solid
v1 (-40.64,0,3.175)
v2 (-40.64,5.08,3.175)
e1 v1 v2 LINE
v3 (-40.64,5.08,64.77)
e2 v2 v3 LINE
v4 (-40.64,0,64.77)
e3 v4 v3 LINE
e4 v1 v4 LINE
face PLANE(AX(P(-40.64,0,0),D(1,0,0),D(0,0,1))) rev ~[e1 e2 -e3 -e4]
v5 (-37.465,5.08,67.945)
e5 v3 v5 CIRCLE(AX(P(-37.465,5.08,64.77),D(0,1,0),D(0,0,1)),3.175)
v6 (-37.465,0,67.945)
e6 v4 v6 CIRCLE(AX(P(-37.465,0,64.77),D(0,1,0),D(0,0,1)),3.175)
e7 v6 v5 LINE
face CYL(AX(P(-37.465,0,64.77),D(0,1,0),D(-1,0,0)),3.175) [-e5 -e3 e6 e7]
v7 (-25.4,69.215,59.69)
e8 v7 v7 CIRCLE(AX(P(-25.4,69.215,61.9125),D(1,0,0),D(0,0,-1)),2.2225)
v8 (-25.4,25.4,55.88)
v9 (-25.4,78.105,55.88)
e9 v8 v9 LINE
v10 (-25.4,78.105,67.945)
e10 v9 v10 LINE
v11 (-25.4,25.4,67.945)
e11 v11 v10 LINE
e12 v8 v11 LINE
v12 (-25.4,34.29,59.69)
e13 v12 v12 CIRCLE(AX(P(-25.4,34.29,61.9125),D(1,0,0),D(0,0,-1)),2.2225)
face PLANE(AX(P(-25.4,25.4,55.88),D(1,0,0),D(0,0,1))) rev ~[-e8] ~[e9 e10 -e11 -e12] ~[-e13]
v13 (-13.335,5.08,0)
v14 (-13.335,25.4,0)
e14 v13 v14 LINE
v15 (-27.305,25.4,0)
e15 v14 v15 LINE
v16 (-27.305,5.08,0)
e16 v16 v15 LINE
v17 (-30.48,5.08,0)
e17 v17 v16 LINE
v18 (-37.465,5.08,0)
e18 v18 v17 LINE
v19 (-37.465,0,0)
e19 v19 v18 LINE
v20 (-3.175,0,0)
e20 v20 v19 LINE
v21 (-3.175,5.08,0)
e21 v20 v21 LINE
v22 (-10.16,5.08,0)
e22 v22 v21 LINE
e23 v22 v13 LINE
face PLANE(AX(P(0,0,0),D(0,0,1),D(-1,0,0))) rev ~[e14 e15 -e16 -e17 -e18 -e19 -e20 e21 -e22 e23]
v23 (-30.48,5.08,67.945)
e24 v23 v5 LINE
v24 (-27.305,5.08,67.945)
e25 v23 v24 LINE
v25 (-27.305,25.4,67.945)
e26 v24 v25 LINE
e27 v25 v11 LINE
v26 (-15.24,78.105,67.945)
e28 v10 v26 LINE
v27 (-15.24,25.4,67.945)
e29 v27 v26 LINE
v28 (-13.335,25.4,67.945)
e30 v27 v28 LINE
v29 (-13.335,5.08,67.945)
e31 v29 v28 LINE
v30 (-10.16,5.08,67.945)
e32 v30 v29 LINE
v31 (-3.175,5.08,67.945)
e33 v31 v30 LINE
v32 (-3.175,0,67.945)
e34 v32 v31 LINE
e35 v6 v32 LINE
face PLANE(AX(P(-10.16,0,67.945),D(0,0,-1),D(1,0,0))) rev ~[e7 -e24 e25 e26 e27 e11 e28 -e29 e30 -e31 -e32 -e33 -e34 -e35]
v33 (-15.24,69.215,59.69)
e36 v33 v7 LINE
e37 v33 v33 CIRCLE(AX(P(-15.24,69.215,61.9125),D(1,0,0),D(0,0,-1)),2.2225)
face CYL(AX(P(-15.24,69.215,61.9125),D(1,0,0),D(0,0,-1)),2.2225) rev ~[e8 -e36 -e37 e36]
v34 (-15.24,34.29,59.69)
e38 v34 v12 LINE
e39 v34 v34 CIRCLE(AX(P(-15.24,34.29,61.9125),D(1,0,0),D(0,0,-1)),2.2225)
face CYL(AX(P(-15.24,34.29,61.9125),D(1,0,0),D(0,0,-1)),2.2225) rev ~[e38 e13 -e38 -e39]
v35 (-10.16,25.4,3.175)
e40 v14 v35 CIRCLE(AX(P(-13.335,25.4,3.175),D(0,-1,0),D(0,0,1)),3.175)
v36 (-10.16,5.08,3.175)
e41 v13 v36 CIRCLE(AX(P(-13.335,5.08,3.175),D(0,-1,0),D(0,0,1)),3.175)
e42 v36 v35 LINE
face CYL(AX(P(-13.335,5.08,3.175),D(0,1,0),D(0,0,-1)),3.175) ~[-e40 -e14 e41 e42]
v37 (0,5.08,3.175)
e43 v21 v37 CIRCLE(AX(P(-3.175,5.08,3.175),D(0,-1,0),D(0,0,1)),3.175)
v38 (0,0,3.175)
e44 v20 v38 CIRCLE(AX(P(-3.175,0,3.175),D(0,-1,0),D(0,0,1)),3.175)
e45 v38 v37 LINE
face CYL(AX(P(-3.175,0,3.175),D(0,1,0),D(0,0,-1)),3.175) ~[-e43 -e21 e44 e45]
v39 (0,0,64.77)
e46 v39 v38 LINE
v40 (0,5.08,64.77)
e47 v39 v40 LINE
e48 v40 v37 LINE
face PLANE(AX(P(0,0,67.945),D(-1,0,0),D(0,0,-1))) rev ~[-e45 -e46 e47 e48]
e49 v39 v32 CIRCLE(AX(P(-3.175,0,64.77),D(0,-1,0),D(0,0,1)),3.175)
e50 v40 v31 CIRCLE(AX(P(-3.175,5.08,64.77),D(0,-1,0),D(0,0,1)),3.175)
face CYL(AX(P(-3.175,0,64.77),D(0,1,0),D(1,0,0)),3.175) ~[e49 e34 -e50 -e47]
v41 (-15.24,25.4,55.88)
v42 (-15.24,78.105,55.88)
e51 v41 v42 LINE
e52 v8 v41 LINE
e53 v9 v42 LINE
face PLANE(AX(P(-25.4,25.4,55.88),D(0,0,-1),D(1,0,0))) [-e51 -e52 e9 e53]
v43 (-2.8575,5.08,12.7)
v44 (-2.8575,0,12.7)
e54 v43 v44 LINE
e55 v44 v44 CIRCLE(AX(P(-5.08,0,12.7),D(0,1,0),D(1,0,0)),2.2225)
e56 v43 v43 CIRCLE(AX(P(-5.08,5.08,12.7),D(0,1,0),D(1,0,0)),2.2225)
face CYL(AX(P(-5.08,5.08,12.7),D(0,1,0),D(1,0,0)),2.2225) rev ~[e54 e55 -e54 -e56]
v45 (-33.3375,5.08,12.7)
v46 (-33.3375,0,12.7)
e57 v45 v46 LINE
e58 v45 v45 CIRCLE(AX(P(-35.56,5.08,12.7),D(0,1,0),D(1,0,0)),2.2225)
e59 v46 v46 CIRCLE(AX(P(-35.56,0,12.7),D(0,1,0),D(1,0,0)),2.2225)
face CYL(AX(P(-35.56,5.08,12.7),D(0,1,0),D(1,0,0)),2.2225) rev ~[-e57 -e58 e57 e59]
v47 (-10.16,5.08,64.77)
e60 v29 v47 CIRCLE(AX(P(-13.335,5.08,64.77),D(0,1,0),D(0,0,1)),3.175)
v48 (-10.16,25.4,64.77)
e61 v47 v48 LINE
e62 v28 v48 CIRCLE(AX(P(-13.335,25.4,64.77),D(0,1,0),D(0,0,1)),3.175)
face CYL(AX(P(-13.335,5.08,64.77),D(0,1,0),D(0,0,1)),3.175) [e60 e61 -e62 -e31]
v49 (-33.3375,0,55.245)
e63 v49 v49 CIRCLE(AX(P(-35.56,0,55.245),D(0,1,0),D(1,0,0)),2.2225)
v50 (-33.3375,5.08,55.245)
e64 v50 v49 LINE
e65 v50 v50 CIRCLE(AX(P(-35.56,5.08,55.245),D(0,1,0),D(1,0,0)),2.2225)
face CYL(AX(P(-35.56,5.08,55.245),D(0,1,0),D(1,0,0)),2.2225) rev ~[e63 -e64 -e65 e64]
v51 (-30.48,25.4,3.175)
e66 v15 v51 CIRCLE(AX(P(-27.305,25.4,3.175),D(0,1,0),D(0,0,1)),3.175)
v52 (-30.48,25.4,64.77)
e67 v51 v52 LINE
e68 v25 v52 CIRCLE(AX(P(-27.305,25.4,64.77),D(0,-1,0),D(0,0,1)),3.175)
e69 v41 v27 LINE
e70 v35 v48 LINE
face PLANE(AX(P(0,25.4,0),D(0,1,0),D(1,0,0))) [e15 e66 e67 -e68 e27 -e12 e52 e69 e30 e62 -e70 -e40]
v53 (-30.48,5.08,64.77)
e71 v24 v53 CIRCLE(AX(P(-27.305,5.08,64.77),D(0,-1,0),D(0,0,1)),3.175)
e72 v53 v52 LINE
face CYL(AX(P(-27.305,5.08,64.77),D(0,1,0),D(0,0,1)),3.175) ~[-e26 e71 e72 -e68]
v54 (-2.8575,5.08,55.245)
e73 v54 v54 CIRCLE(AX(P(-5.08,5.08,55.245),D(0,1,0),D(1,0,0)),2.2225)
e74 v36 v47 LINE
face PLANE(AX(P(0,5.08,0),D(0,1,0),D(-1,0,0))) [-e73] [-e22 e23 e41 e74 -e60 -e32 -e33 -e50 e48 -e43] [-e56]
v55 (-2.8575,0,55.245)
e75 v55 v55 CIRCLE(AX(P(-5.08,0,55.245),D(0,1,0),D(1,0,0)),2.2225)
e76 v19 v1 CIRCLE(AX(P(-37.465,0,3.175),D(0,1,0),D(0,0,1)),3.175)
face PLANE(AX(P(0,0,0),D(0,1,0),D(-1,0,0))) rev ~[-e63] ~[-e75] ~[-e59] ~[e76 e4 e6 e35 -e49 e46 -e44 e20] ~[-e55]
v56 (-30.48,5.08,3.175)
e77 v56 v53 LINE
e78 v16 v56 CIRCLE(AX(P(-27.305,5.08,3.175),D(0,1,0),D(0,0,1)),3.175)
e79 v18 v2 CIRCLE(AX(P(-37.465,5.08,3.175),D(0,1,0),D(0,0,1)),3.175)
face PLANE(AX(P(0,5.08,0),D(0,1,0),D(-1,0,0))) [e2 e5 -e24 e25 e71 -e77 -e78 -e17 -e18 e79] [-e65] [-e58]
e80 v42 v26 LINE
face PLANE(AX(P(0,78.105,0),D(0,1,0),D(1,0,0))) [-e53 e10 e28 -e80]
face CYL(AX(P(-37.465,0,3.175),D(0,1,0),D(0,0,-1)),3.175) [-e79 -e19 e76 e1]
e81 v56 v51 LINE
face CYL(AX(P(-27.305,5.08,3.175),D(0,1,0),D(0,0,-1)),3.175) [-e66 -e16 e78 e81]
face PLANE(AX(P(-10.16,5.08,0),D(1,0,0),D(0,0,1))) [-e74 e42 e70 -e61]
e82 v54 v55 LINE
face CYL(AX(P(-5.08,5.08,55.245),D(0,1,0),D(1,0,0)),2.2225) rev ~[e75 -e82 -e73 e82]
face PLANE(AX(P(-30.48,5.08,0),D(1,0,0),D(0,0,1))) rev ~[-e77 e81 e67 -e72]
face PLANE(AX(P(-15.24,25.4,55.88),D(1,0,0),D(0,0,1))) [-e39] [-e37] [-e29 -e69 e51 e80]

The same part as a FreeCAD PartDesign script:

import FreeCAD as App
import Part
import Sketcher
from FreeCAD import Vector
Q = App.Units.Quantity


def edges_at(feature, points):
    """Names of the edges that pass closest to the given points."""
    edges = feature.Shape.Edges
    near = lambda p: min(range(len(edges)), key=lambda i: edges[i].distToShape(Part.Vertex(*p))[0])
    return sorted({f"Edge{near(p) + 1}" for p in points})


def add_polygon(sketch, points):
    """Adds a closed chain of lines whose ends are joined by coincident constraints."""
    first, n = sketch.GeometryCount, len(points)
    for a, b in zip(points, points[1:] + points[:1]):
        sketch.addGeometry(Part.LineSegment(App.Vector(*a, 0), App.Vector(*b, 0)), False)
    for i in range(n):
        sketch.addConstraint(Sketcher.Constraint("Coincident", first + i, 2, first + (i + 1) % n, 1))

doc = App.newDocument("Part")
params = doc.addObject("Spreadsheet::Sheet", "Params")
for row, (alias, value) in enumerate([
    ("sketch1_width", "1.6 in"),
    ("sketch1_height", "2.675 in"),
    ("pad1_length", "0.2 in"),
    ("sketch2_width", "0.8 in"),
    ("sketch2_height", "2.675 in"),
    ("pad2_length", "0.8 in"),
    ("sketch3_width", "0.4 in"),
    ("sketch3_height", "0.475 in"),
    ("pad3_length", "2.075 in"),
    ("sketch4_diameter", "0.175 in"),
    ("pocket1_length", "2.075 in"),
    ("sketch5_diameter", "0.175 in"),
    ("pocket2_length", "2.075 in"),
    ("sketch6_diameter", "0.175 in"),
    ("pocket3_length", "2.075 in"),
    ("fillet_radius", "0.125 in"),
    ("fillet2_radius", "0.125 in"),
    ("fillet3_radius", "0.125 in"),
    ("fillet4_radius", "0.125 in"),
    ("fillet5_radius", "0.125 in"),
    ("fillet6_radius", "0.125 in"),
    ("fillet7_radius", "0.125 in"),
    ("fillet8_radius", "0.125 in"),
], start=1):
    params.set(f"A{row}", alias)
    params.set(f"B{row}", "=" + value)
    params.setAlias(f"B{row}", alias)

body = doc.addObject("PartDesign::Body", "Body")

sketch1 = body.newObject("Sketcher::SketchObject", "Sketch")
sketch1.AttachmentSupport = (doc.getObject("XZ_Plane"), [""])
sketch1.MapMode = "FlatFace"
add_polygon(sketch1, [(0, 68), (0, 0), (-41, 0), (-41, 68)])
sketch1.addConstraint(Sketcher.Constraint("Vertical", 0))
sketch1.addConstraint(Sketcher.Constraint("Horizontal", 1))
sketch1.addConstraint(Sketcher.Constraint("Vertical", 2))
sketch1.addConstraint(Sketcher.Constraint("Horizontal", 3))
sketch1.addConstraint(Sketcher.Constraint("Coincident", 0, 2, -1, 1))
sketch1.addConstraint(Sketcher.Constraint("DistanceX", 1, 2, 1, 1, Q("1.6 in")))
sketch1.addConstraint(Sketcher.Constraint("DistanceY", 0, 2, 0, 1, Q("2.675 in")))
sketch1.setExpression("Constraints[9]", "Params.sketch1_width")
sketch1.setExpression("Constraints[10]", "Params.sketch1_height")
pad1 = body.newObject("PartDesign::Pad", "Pad")
pad1.Profile = sketch1
pad1.setExpression("Length", "Params.pad1_length")
pad1.Reversed = True

sketch2 = body.newObject("Sketcher::SketchObject", "Sketch001")
sketch2.AttachmentSupport = (doc.getObject("XZ_Plane"), [""])
sketch2.MapMode = "FlatFace"
sketch2.AttachmentOffset = App.Placement(Vector(0, 0, -0.2 * 25.4), App.Rotation())
add_polygon(sketch2, [(-10, 68), (-10, 0), (-30, 0), (-30, 68)])
sketch2.addConstraint(Sketcher.Constraint("Vertical", 0))
sketch2.addConstraint(Sketcher.Constraint("Horizontal", 1))
sketch2.addConstraint(Sketcher.Constraint("Vertical", 2))
sketch2.addConstraint(Sketcher.Constraint("Horizontal", 3))
sketch2.addConstraint(Sketcher.Constraint("PointOnObject", 0, 2, -1))
sketch2.addConstraint(Sketcher.Constraint("DistanceX", 1, 2, 1, 1, Q("0.8 in")))
sketch2.addConstraint(Sketcher.Constraint("DistanceX", 0, 2, -1, 1, Q("0.4 in")))
sketch2.addConstraint(Sketcher.Constraint("DistanceY", 0, 2, 0, 1, Q("2.675 in")))
sketch2.setExpression("Constraints[9]", "Params.sketch2_width")
sketch2.setExpression("Constraints[11]", "Params.sketch2_height")
pad2 = body.newObject("PartDesign::Pad", "Pad001")
pad2.Profile = sketch2
pad2.setExpression("Length", "Params.pad2_length")
pad2.Reversed = True

sketch3 = body.newObject("Sketcher::SketchObject", "Sketch002")
sketch3.AttachmentSupport = (doc.getObject("XZ_Plane"), [""])
sketch3.MapMode = "FlatFace"
sketch3.AttachmentOffset = App.Placement(Vector(0, 0, -1 * 25.4), App.Rotation())
add_polygon(sketch3, [(-25, 56), (-25, 68), (-15, 68), (-15, 56)])
sketch3.addConstraint(Sketcher.Constraint("Vertical", 0))
sketch3.addConstraint(Sketcher.Constraint("Horizontal", 1))
sketch3.addConstraint(Sketcher.Constraint("Vertical", 2))
sketch3.addConstraint(Sketcher.Constraint("Horizontal", 3))
sketch3.addConstraint(Sketcher.Constraint("DistanceX", 1, 1, 1, 2, Q("0.4 in")))
sketch3.addConstraint(Sketcher.Constraint("DistanceX", 0, 2, -1, 1, Q("1 in")))
sketch3.addConstraint(Sketcher.Constraint("DistanceY", -1, 1, 2, 2, Q("2.2 in")))
sketch3.addConstraint(Sketcher.Constraint("DistanceY", 0, 1, 0, 2, Q("0.475 in")))
sketch3.setExpression("Constraints[8]", "Params.sketch3_width")
sketch3.setExpression("Constraints[11]", "Params.sketch3_height")
pad3 = body.newObject("PartDesign::Pad", "Pad002")
pad3.Profile = sketch3
pad3.setExpression("Length", "Params.pad3_length")
pad3.Reversed = True

sketch4 = body.newObject("Sketcher::SketchObject", "Sketch003")
sketch4.AttachmentSupport = (doc.getObject("YZ_Plane"), [""])
sketch4.MapMode = "FlatFace"
sketch4.AttachmentOffset = App.Placement(Vector(0, 0, -0.6 * 25.4), App.Rotation())
sketch4.addGeometry(Part.Circle(Vector(34.3, 61.9, 0), Vector(0, 0, 1), 2.2), False)
sketch4.addGeometry(Part.Circle(Vector(69.2, 61.9, 0), Vector(0, 0, 1), 2.2), False)
sketch4.addConstraint(Sketcher.Constraint("Equal", 0, 1))
sketch4.addConstraint(Sketcher.Constraint("Horizontal", 0, 3, 1, 3))
sketch4.addConstraint(Sketcher.Constraint("Diameter", 0, Q("0.175 in")))
sketch4.addConstraint(Sketcher.Constraint("DistanceX", -1, 1, 0, 3, Q("1.35 in")))
sketch4.addConstraint(Sketcher.Constraint("DistanceY", -1, 1, 0, 3, Q("2.4375 in")))
sketch4.addConstraint(Sketcher.Constraint("DistanceX", -1, 1, 1, 3, Q("2.725 in")))
sketch4.setExpression("Constraints[2]", "Params.sketch4_diameter")
pocket1 = body.newObject("PartDesign::Pocket", "Pocket")
pocket1.Profile = sketch4
pocket1.setExpression("Length", "Params.pocket1_length")

sketch5 = body.newObject("Sketcher::SketchObject", "Sketch004")
sketch5.AttachmentSupport = (doc.getObject("XZ_Plane"), [""])
sketch5.MapMode = "FlatFace"
sketch5.AttachmentOffset = App.Placement(Vector(0, 0, -0.2 * 25.4), App.Rotation())
sketch5.addGeometry(Part.Circle(Vector(-5.1, 12.7, 0), Vector(0, 0, 1), 2.2), False)
sketch5.addGeometry(Part.Circle(Vector(-5.1, 55.2, 0), Vector(0, 0, 1), 2.2), False)
sketch5.addConstraint(Sketcher.Constraint("Equal", 0, 1))
sketch5.addConstraint(Sketcher.Constraint("Vertical", 0, 3, 1, 3))
sketch5.addConstraint(Sketcher.Constraint("Diameter", 0, Q("0.175 in")))
sketch5.addConstraint(Sketcher.Constraint("DistanceX", 0, 3, -1, 1, Q("0.2 in")))
sketch5.addConstraint(Sketcher.Constraint("DistanceY", -1, 1, 0, 3, Q("0.5 in")))
sketch5.addConstraint(Sketcher.Constraint("DistanceY", -1, 1, 1, 3, Q("2.175 in")))
sketch5.setExpression("Constraints[2]", "Params.sketch5_diameter")
pocket2 = body.newObject("PartDesign::Pocket", "Pocket001")
pocket2.Profile = sketch5
pocket2.setExpression("Length", "Params.pocket2_length")
pocket2.Reversed = True

sketch6 = body.newObject("Sketcher::SketchObject", "Sketch005")
sketch6.AttachmentSupport = (doc.getObject("XZ_Plane"), [""])
sketch6.MapMode = "FlatFace"
sketch6.AttachmentOffset = App.Placement(Vector(0, 0, -0.2 * 25.4), App.Rotation())
sketch6.addGeometry(Part.Circle(Vector(-35.6, 12.7, 0), Vector(0, 0, 1), 2.2), False)
sketch6.addGeometry(Part.Circle(Vector(-35.6, 55.2, 0), Vector(0, 0, 1), 2.2), False)
sketch6.addConstraint(Sketcher.Constraint("Equal", 0, 1))
sketch6.addConstraint(Sketcher.Constraint("Vertical", 0, 3, 1, 3))
sketch6.addConstraint(Sketcher.Constraint("Diameter", 0, Q("0.175 in")))
sketch6.addConstraint(Sketcher.Constraint("DistanceX", 0, 3, -1, 1, Q("1.4 in")))
sketch6.addConstraint(Sketcher.Constraint("DistanceY", -1, 1, 0, 3, Q("0.5 in")))
sketch6.addConstraint(Sketcher.Constraint("DistanceY", -1, 1, 1, 3, Q("2.175 in")))
sketch6.setExpression("Constraints[2]", "Params.sketch6_diameter")
pocket3 = body.newObject("PartDesign::Pocket", "Pocket002")
pocket3.Profile = sketch6
pocket3.setExpression("Length", "Params.pocket3_length")
pocket3.Reversed = True
doc.recompute()

fillet = body.newObject("PartDesign::Fillet", "Fillet")
fillet.Base = (pocket3, edges_at(pocket3, [(-40.64, 2.54, 0)]))
fillet.setExpression("Radius", "Params.fillet_radius")
doc.recompute()

fillet2 = body.newObject("PartDesign::Fillet", "Fillet001")
fillet2.Base = (fillet, edges_at(fillet, [(-40.64, 2.54, 67.945)]))
fillet2.setExpression("Radius", "Params.fillet2_radius")
doc.recompute()

fillet3 = body.newObject("PartDesign::Fillet", "Fillet002")
fillet3.Base = (fillet2, edges_at(fillet2, [(0, 2.54, 0)]))
fillet3.setExpression("Radius", "Params.fillet3_radius")
doc.recompute()

fillet4 = body.newObject("PartDesign::Fillet", "Fillet003")
fillet4.Base = (fillet3, edges_at(fillet3, [(0, 2.54, 67.945)]))
fillet4.setExpression("Radius", "Params.fillet4_radius")
doc.recompute()

fillet5 = body.newObject("PartDesign::Fillet", "Fillet004")
fillet5.Base = (fillet4, edges_at(fillet4, [(-10.16, 15.24, 67.945)]))
fillet5.setExpression("Radius", "Params.fillet5_radius")
doc.recompute()

fillet6 = body.newObject("PartDesign::Fillet", "Fillet005")
fillet6.Base = (fillet5, edges_at(fillet5, [(-30.48, 15.24, 67.945)]))
fillet6.setExpression("Radius", "Params.fillet6_radius")
doc.recompute()

fillet7 = body.newObject("PartDesign::Fillet", "Fillet006")
fillet7.Base = (fillet6, edges_at(fillet6, [(-10.16, 15.24, 0)]))
fillet7.setExpression("Radius", "Params.fillet7_radius")
doc.recompute()

fillet8 = body.newObject("PartDesign::Fillet", "Fillet007")
fillet8.Base = (fillet7, edges_at(fillet7, [(-30.48, 15.24, 0)]))
fillet8.setExpression("Radius", "Params.fillet8_radius")

doc.recompute()
